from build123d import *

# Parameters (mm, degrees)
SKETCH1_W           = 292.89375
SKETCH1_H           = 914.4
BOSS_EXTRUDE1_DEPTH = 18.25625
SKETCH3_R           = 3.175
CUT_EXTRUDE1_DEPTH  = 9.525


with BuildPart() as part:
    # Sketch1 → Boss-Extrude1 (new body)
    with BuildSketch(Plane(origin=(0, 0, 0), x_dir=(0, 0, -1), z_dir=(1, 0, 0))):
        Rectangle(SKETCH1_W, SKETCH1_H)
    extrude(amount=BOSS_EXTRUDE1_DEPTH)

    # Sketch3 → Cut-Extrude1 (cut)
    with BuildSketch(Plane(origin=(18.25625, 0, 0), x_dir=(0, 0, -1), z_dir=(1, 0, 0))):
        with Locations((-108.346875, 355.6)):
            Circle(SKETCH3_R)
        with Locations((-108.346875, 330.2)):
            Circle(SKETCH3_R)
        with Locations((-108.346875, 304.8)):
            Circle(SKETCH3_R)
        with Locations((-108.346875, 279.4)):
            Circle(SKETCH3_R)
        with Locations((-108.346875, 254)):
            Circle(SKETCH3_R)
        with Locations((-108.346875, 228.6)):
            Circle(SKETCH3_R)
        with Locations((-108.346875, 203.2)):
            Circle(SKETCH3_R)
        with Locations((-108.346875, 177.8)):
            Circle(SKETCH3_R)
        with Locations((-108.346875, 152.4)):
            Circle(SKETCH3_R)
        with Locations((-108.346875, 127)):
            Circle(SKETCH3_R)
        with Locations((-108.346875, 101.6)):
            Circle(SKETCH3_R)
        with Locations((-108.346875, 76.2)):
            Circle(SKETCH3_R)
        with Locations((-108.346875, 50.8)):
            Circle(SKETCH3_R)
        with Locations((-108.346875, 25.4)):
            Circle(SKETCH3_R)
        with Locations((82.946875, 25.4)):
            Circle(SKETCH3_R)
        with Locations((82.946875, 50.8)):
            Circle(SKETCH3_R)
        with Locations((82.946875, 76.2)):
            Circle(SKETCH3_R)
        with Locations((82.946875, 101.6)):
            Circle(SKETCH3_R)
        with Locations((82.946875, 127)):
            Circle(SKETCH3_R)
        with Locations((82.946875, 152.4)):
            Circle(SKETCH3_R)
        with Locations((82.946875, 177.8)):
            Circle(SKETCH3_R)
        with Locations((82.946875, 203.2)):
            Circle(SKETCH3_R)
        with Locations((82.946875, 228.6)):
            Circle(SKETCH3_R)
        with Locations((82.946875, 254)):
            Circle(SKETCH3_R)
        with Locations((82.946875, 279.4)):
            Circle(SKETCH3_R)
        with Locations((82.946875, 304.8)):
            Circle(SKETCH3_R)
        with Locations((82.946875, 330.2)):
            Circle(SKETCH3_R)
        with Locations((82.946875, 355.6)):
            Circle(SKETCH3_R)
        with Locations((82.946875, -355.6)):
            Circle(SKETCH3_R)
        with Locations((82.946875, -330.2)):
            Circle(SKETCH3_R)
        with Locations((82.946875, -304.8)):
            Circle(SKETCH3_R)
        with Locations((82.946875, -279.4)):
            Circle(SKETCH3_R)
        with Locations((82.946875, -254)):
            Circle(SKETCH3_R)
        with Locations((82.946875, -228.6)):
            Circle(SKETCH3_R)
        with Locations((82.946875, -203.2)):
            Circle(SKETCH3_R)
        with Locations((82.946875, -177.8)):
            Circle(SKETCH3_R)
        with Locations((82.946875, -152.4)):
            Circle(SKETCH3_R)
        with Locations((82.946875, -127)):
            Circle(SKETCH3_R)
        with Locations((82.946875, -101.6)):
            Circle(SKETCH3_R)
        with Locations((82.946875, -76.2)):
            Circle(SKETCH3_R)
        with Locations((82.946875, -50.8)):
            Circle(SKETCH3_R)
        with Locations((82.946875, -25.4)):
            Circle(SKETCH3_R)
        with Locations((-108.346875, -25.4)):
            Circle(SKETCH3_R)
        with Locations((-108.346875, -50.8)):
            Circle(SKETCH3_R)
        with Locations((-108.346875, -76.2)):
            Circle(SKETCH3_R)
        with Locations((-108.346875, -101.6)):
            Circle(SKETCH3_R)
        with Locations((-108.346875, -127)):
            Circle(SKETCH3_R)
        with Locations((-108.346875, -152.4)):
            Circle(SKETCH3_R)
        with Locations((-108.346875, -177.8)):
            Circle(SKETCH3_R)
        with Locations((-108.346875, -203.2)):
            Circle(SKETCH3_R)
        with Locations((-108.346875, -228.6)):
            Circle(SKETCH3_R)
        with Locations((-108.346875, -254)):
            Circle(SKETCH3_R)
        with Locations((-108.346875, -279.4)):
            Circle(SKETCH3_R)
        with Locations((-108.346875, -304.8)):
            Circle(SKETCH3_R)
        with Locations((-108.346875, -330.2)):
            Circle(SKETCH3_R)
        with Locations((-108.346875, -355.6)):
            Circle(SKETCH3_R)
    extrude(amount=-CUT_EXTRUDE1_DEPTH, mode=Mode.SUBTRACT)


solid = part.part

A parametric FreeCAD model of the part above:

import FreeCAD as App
import Part
import Sketcher

V = App.Vector
Q = App.Units.Quantity


def add_polygon(sketch, points):
    """Adds a closed chain of lines whose ends are joined by coincident constraints."""
    first, n = sketch.GeometryCount, len(points)
    for a, b in zip(points, points[1:] + points[:1]):
        sketch.addGeometry(Part.LineSegment(App.Vector(*a, 0), App.Vector(*b, 0)), False)
    for i in range(n):
        sketch.addConstraint(Sketcher.Constraint("Coincident", first + i, 2, first + (i + 1) % n, 1))

doc = App.newDocument("Part")
params = doc.addObject("Spreadsheet::Sheet", "Params")
for row, (alias, value) in enumerate([
    ("sketch1_width", "36 in"),
    ("sketch1_height", "11.53125 in"),
    ("pad1_length", "0.71875 in"),
    ("sketch2_diameter", "0.25 in"),
    ("pocket1_length", "0.375 in"),
], start=1):
    params.set(f"A{row}", alias)
    params.set(f"B{row}", "=" + value)
    params.setAlias(f"B{row}", alias)

body = doc.addObject("PartDesign::Body", "Body")

sketch1 = body.newObject("Sketcher::SketchObject", "Sketch")
sketch1.AttachmentSupport = (doc.getObject("YZ_Plane"), [""])
sketch1.MapMode = "FlatFace"
add_polygon(sketch1, [(457.2, 146.446875), (-457.2, 146.446875), (-457.2, -146.446875), (457.2, -146.446875)])
sketch1.addConstraint(Sketcher.Constraint("Horizontal", 0))
sketch1.addConstraint(Sketcher.Constraint("Vertical", 1))
sketch1.addConstraint(Sketcher.Constraint("Horizontal", 2))
sketch1.addConstraint(Sketcher.Constraint("Vertical", 3))
sketch1.addConstraint(Sketcher.Constraint("Symmetric", 0, 2, 2, 2, -1, 1))
sketch1.addConstraint(Sketcher.Constraint("DistanceX", 0, 2, 0, 1, Q("36 in")))
sketch1.addConstraint(Sketcher.Constraint("DistanceY", 1, 2, 1, 1, Q("11.53125 in")))
sketch1.setExpression("Constraints[9]", "Params.sketch1_width")
sketch1.setExpression("Constraints[10]", "Params.sketch1_height")
pad1 = body.newObject("PartDesign::Pad", "Pad")
pad1.Profile = sketch1
pad1.setExpression("Length", "Params.pad1_length")

sketch2 = body.newObject("Sketcher::SketchObject", "Sketch001")
sketch2.AttachmentSupport = (doc.getObject("YZ_Plane"), [""])
sketch2.MapMode = "FlatFace"
sketch2.AttachmentOffset = App.Placement(V(0, 0, 0.71875 * 25.4), App.Rotation())
sketch2.addGeometry(Part.Circle(V(355.6, 108.346875, 0), V(0, 0, 1), 3.175), False)
sketch2.addGeometry(Part.Circle(V(330.2, 108.346875, 0), V(0, 0, 1), 3.175), False)
sketch2.addGeometry(Part.Circle(V(304.8, 108.346875, 0), V(0, 0, 1), 3.175), False)
sketch2.addGeometry(Part.Circle(V(279.4, 108.346875, 0), V(0, 0, 1), 3.175), False)
sketch2.addGeometry(Part.Circle(V(254, 108.346875, 0), V(0, 0, 1), 3.175), False)
sketch2.addGeometry(Part.Circle(V(228.6, 108.346875, 0), V(0, 0, 1), 3.175), False)
sketch2.addGeometry(Part.Circle(V(203.2, 108.346875, 0), V(0, 0, 1), 3.175), False)
sketch2.addGeometry(Part.Circle(V(177.8, 108.346875, 0), V(0, 0, 1), 3.175), False)
sketch2.addGeometry(Part.Circle(V(152.4, 108.346875, 0), V(0, 0, 1), 3.175), False)
sketch2.addGeometry(Part.Circle(V(127, 108.346875, 0), V(0, 0, 1), 3.175), False)
sketch2.addGeometry(Part.Circle(V(101.6, 108.346875, 0), V(0, 0, 1), 3.175), False)
sketch2.addGeometry(Part.Circle(V(76.2, 108.346875, 0), V(0, 0, 1), 3.175), False)
sketch2.addGeometry(Part.Circle(V(50.8, 108.346875, 0), V(0, 0, 1), 3.175), False)
sketch2.addGeometry(Part.Circle(V(25.4, 108.346875, 0), V(0, 0, 1), 3.175), False)
sketch2.addGeometry(Part.Circle(V(25.4, -82.946875, 0), V(0, 0, 1), 3.175), False)
sketch2.addGeometry(Part.Circle(V(50.8, -82.946875, 0), V(0, 0, 1), 3.175), False)
sketch2.addGeometry(Part.Circle(V(76.2, -82.946875, 0), V(0, 0, 1), 3.175), False)
sketch2.addGeometry(Part.Circle(V(101.6, -82.946875, 0), V(0, 0, 1), 3.175), False)
sketch2.addGeometry(Part.Circle(V(127, -82.946875, 0), V(0, 0, 1), 3.175), False)
sketch2.addGeometry(Part.Circle(V(152.4, -82.946875, 0), V(0, 0, 1), 3.175), False)
sketch2.addGeometry(Part.Circle(V(177.8, -82.946875, 0), V(0, 0, 1), 3.175), False)
sketch2.addGeometry(Part.Circle(V(203.2, -82.946875, 0), V(0, 0, 1), 3.175), False)
sketch2.addGeometry(Part.Circle(V(228.6, -82.946875, 0), V(0, 0, 1), 3.175), False)
sketch2.addGeometry(Part.Circle(V(254, -82.946875, 0), V(0, 0, 1), 3.175), False)
sketch2.addGeometry(Part.Circle(V(279.4, -82.946875, 0), V(0, 0, 1), 3.175), False)
sketch2.addGeometry(Part.Circle(V(304.8, -82.946875, 0), V(0, 0, 1), 3.175), False)
sketch2.addGeometry(Part.Circle(V(330.2, -82.946875, 0), V(0, 0, 1), 3.175), False)
sketch2.addGeometry(Part.Circle(V(355.6, -82.946875, 0), V(0, 0, 1), 3.175), False)
sketch2.addGeometry(Part.Circle(V(-355.6, -82.946875, 0), V(0, 0, 1), 3.175), False)
sketch2.addGeometry(Part.Circle(V(-330.2, -82.946875, 0), V(0, 0, 1), 3.175), False)
sketch2.addGeometry(Part.Circle(V(-304.8, -82.946875, 0), V(0, 0, 1), 3.175), False)
sketch2.addGeometry(Part.Circle(V(-279.4, -82.946875, 0), V(0, 0, 1), 3.175), False)
sketch2.addGeometry(Part.Circle(V(-254, -82.946875, 0), V(0, 0, 1), 3.175), False)
sketch2.addGeometry(Part.Circle(V(-228.6, -82.946875, 0), V(0, 0, 1), 3.175), False)
sketch2.addGeometry(Part.Circle(V(-203.2, -82.946875, 0), V(0, 0, 1), 3.175), False)
sketch2.addGeometry(Part.Circle(V(-177.8, -82.946875, 0), V(0, 0, 1), 3.175), False)
sketch2.addGeometry(Part.Circle(V(-152.4, -82.946875, 0), V(0, 0, 1), 3.175), False)
sketch2.addGeometry(Part.Circle(V(-127, -82.946875, 0), V(0, 0, 1), 3.175), False)
sketch2.addGeometry(Part.Circle(V(-101.6, -82.946875, 0), V(0, 0, 1), 3.175), False)
sketch2.addGeometry(Part.Circle(V(-76.2, -82.946875, 0), V(0, 0, 1), 3.175), False)
sketch2.addGeometry(Part.Circle(V(-50.8, -82.946875, 0), V(0, 0, 1), 3.175), False)
sketch2.addGeometry(Part.Circle(V(-25.4, -82.946875, 0), V(0, 0, 1), 3.175), False)
sketch2.addGeometry(Part.Circle(V(-25.4, 108.346875, 0), V(0, 0, 1), 3.175), False)
sketch2.addGeometry(Part.Circle(V(-50.8, 108.346875, 0), V(0, 0, 1), 3.175), False)
sketch2.addGeometry(Part.Circle(V(-76.2, 108.346875, 0), V(0, 0, 1), 3.175), False)
sketch2.addGeometry(Part.Circle(V(-101.6, 108.346875, 0), V(0, 0, 1), 3.175), False)
sketch2.addGeometry(Part.Circle(V(-127, 108.346875, 0), V(0, 0, 1), 3.175), False)
sketch2.addGeometry(Part.Circle(V(-152.4, 108.346875, 0), V(0, 0, 1), 3.175), False)
sketch2.addGeometry(Part.Circle(V(-177.8, 108.346875, 0), V(0, 0, 1), 3.175), False)
sketch2.addGeometry(Part.Circle(V(-203.2, 108.346875, 0), V(0, 0, 1), 3.175), False)
sketch2.addGeometry(Part.Circle(V(-228.6, 108.346875, 0), V(0, 0, 1), 3.175), False)
sketch2.addGeometry(Part.Circle(V(-254, 108.346875, 0), V(0, 0, 1), 3.175), False)
sketch2.addGeometry(Part.Circle(V(-279.4, 108.346875, 0), V(0, 0, 1), 3.175), False)
sketch2.addGeometry(Part.Circle(V(-304.8, 108.346875, 0), V(0, 0, 1), 3.175), False)
sketch2.addGeometry(Part.Circle(V(-330.2, 108.346875, 0), V(0, 0, 1), 3.175), False)
sketch2.addGeometry(Part.Circle(V(-355.6, 108.346875, 0), V(0, 0, 1), 3.175), False)
sketch2.addConstraint(Sketcher.Constraint("Equal", 0, 1))
sketch2.addConstraint(Sketcher.Constraint("Equal", 1, 2))
sketch2.addConstraint(Sketcher.Constraint("Equal", 2, 3))
sketch2.addConstraint(Sketcher.Constraint("Equal", 3, 4))
sketch2.addConstraint(Sketcher.Constraint("Equal", 4, 5))
sketch2.addConstraint(Sketcher.Constraint("Equal", 5, 6))
sketch2.addConstraint(Sketcher.Constraint("Equal", 6, 7))
sketch2.addConstraint(Sketcher.Constraint("Equal", 7, 8))
sketch2.addConstraint(Sketcher.Constraint("Equal", 8, 9))
sketch2.addConstraint(Sketcher.Constraint("Equal", 9, 10))
sketch2.addConstraint(Sketcher.Constraint("Equal", 10, 11))
sketch2.addConstraint(Sketcher.Constraint("Equal", 11, 12))
sketch2.addConstraint(Sketcher.Constraint("Equal", 12, 13))
sketch2.addConstraint(Sketcher.Constraint("Equal", 13, 14))
sketch2.addConstraint(Sketcher.Constraint("Equal", 14, 15))
sketch2.addConstraint(Sketcher.Constraint("Equal", 15, 16))
sketch2.addConstraint(Sketcher.Constraint("Equal", 16, 17))
sketch2.addConstraint(Sketcher.Constraint("Equal", 17, 18))
sketch2.addConstraint(Sketcher.Constraint("Equal", 18, 19))
sketch2.addConstraint(Sketcher.Constraint("Equal", 19, 20))
sketch2.addConstraint(Sketcher.Constraint("Equal", 20, 21))
sketch2.addConstraint(Sketcher.Constraint("Equal", 21, 22))
sketch2.addConstraint(Sketcher.Constraint("Equal", 22, 23))
sketch2.addConstraint(Sketcher.Constraint("Equal", 23, 24))
sketch2.addConstraint(Sketcher.Constraint("Equal", 24, 25))
sketch2.addConstraint(Sketcher.Constraint("Equal", 25, 26))
sketch2.addConstraint(Sketcher.Constraint("Equal", 26, 27))
sketch2.addConstraint(Sketcher.Constraint("Equal", 27, 28))
sketch2.addConstraint(Sketcher.Constraint("Equal", 28, 29))
sketch2.addConstraint(Sketcher.Constraint("Equal", 29, 30))
sketch2.addConstraint(Sketcher.Constraint("Equal", 30, 31))
sketch2.addConstraint(Sketcher.Constraint("Equal", 31, 32))
sketch2.addConstraint(Sketcher.Constraint("Equal", 32, 33))
sketch2.addConstraint(Sketcher.Constraint("Equal", 33, 34))
sketch2.addConstraint(Sketcher.Constraint("Equal", 34, 35))
sketch2.addConstraint(Sketcher.Constraint("Equal", 35, 36))
sketch2.addConstraint(Sketcher.Constraint("Equal", 36, 37))
sketch2.addConstraint(Sketcher.Constraint("Equal", 37, 38))
sketch2.addConstraint(Sketcher.Constraint("Equal", 38, 39))
sketch2.addConstraint(Sketcher.Constraint("Equal", 39, 40))
sketch2.addConstraint(Sketcher.Constraint("Equal", 40, 41))
sketch2.addConstraint(Sketcher.Constraint("Equal", 41, 42))
sketch2.addConstraint(Sketcher.Constraint("Equal", 42, 43))
sketch2.addConstraint(Sketcher.Constraint("Equal", 43, 44))
sketch2.addConstraint(Sketcher.Constraint("Equal", 44, 45))
sketch2.addConstraint(Sketcher.Constraint("Equal", 45, 46))
sketch2.addConstraint(Sketcher.Constraint("Equal", 46, 47))
sketch2.addConstraint(Sketcher.Constraint("Equal", 47, 48))
sketch2.addConstraint(Sketcher.Constraint("Equal", 48, 49))
sketch2.addConstraint(Sketcher.Constraint("Equal", 49, 50))
sketch2.addConstraint(Sketcher.Constraint("Equal", 50, 51))
sketch2.addConstraint(Sketcher.Constraint("Equal", 51, 52))
sketch2.addConstraint(Sketcher.Constraint("Equal", 52, 53))
sketch2.addConstraint(Sketcher.Constraint("Equal", 53, 54))
sketch2.addConstraint(Sketcher.Constraint("Equal", 54, 55))
sketch2.addConstraint(Sketcher.Constraint("Symmetric", 27, 3, 28, 3, -2))
sketch2.addConstraint(Sketcher.Constraint("Symmetric", 26, 3, 29, 3, -2))
sketch2.addConstraint(Sketcher.Constraint("Symmetric", 25, 3, 30, 3, -2))
sketch2.addConstraint(Sketcher.Constraint("Symmetric", 24, 3, 31, 3, -2))
sketch2.addConstraint(Sketcher.Constraint("Symmetric", 23, 3, 32, 3, -2))
sketch2.addConstraint(Sketcher.Constraint("Symmetric", 22, 3, 33, 3, -2))
sketch2.addConstraint(Sketcher.Constraint("Symmetric", 21, 3, 34, 3, -2))
sketch2.addConstraint(Sketcher.Constraint("Symmetric", 20, 3, 35, 3, -2))
sketch2.addConstraint(Sketcher.Constraint("Symmetric", 19, 3, 36, 3, -2))
sketch2.addConstraint(Sketcher.Constraint("Symmetric", 18, 3, 37, 3, -2))
sketch2.addConstraint(Sketcher.Constraint("Symmetric", 17, 3, 38, 3, -2))
sketch2.addConstraint(Sketcher.Constraint("Symmetric", 16, 3, 39, 3, -2))
sketch2.addConstraint(Sketcher.Constraint("Symmetric", 15, 3, 40, 3, -2))
sketch2.addConstraint(Sketcher.Constraint("Symmetric", 14, 3, 41, 3, -2))
sketch2.addConstraint(Sketcher.Constraint("Symmetric", 13, 3, 42, 3, -2))
sketch2.addConstraint(Sketcher.Constraint("Symmetric", 12, 3, 43, 3, -2))
sketch2.addConstraint(Sketcher.Constraint("Symmetric", 11, 3, 44, 3, -2))
sketch2.addConstraint(Sketcher.Constraint("Symmetric", 10, 3, 45, 3, -2))
sketch2.addConstraint(Sketcher.Constraint("Symmetric", 9, 3, 46, 3, -2))
sketch2.addConstraint(Sketcher.Constraint("Symmetric", 8, 3, 47, 3, -2))
sketch2.addConstraint(Sketcher.Constraint("Symmetric", 7, 3, 48, 3, -2))
sketch2.addConstraint(Sketcher.Constraint("Symmetric", 6, 3, 49, 3, -2))
sketch2.addConstraint(Sketcher.Constraint("Symmetric", 5, 3, 50, 3, -2))
sketch2.addConstraint(Sketcher.Constraint("Symmetric", 4, 3, 51, 3, -2))
sketch2.addConstraint(Sketcher.Constraint("Symmetric", 3, 3, 52, 3, -2))
sketch2.addConstraint(Sketcher.Constraint("Symmetric", 2, 3, 53, 3, -2))
sketch2.addConstraint(Sketcher.Constraint("Symmetric", 1, 3, 54, 3, -2))
sketch2.addConstraint(Sketcher.Constraint("Symmetric", 0, 3, 55, 3, -2))
sketch2.addConstraint(Sketcher.Constraint("Horizontal", 0, 3, 1, 3))
sketch2.addConstraint(Sketcher.Constraint("Horizontal", 1, 3, 2, 3))
sketch2.addConstraint(Sketcher.Constraint("Horizontal", 2, 3, 3, 3))
sketch2.addConstraint(Sketcher.Constraint("Horizontal", 3, 3, 4, 3))
sketch2.addConstraint(Sketcher.Constraint("Horizontal", 4, 3, 5, 3))
sketch2.addConstraint(Sketcher.Constraint("Horizontal", 5, 3, 6, 3))
sketch2.addConstraint(Sketcher.Constraint("Horizontal", 6, 3, 7, 3))
sketch2.addConstraint(Sketcher.Constraint("Horizontal", 7, 3, 8, 3))
sketch2.addConstraint(Sketcher.Constraint("Horizontal", 8, 3, 9, 3))
sketch2.addConstraint(Sketcher.Constraint("Horizontal", 9, 3, 10, 3))
sketch2.addConstraint(Sketcher.Constraint("Horizontal", 10, 3, 11, 3))
sketch2.addConstraint(Sketcher.Constraint("Horizontal", 11, 3, 12, 3))
sketch2.addConstraint(Sketcher.Constraint("Horizontal", 12, 3, 13, 3))
sketch2.addConstraint(Sketcher.Constraint("Horizontal", 14, 3, 15, 3))
sketch2.addConstraint(Sketcher.Constraint("Horizontal", 15, 3, 16, 3))
sketch2.addConstraint(Sketcher.Constraint("Horizontal", 16, 3, 17, 3))
sketch2.addConstraint(Sketcher.Constraint("Horizontal", 17, 3, 18, 3))
sketch2.addConstraint(Sketcher.Constraint("Horizontal", 18, 3, 19, 3))
sketch2.addConstraint(Sketcher.Constraint("Horizontal", 19, 3, 20, 3))
sketch2.addConstraint(Sketcher.Constraint("Horizontal", 20, 3, 21, 3))
sketch2.addConstraint(Sketcher.Constraint("Horizontal", 21, 3, 22, 3))
sketch2.addConstraint(Sketcher.Constraint("Horizontal", 22, 3, 23, 3))
sketch2.addConstraint(Sketcher.Constraint("Horizontal", 23, 3, 24, 3))
sketch2.addConstraint(Sketcher.Constraint("Horizontal", 24, 3, 25, 3))
sketch2.addConstraint(Sketcher.Constraint("Horizontal", 25, 3, 26, 3))
sketch2.addConstraint(Sketcher.Constraint("Horizontal", 26, 3, 27, 3))
sketch2.addConstraint(Sketcher.Constraint("Vertical", 13, 3, 14, 3))
sketch2.addConstraint(Sketcher.Constraint("Vertical", 12, 3, 15, 3))
sketch2.addConstraint(Sketcher.Constraint("Vertical", 11, 3, 16, 3))
sketch2.addConstraint(Sketcher.Constraint("Vertical", 10, 3, 17, 3))
sketch2.addConstraint(Sketcher.Constraint("Vertical", 9, 3, 18, 3))
sketch2.addConstraint(Sketcher.Constraint("Vertical", 8, 3, 19, 3))
sketch2.addConstraint(Sketcher.Constraint("Vertical", 7, 3, 20, 3))
sketch2.addConstraint(Sketcher.Constraint("Vertical", 6, 3, 21, 3))
sketch2.addConstraint(Sketcher.Constraint("Vertical", 5, 3, 22, 3))
sketch2.addConstraint(Sketcher.Constraint("Vertical", 4, 3, 23, 3))
sketch2.addConstraint(Sketcher.Constraint("Vertical", 3, 3, 24, 3))
sketch2.addConstraint(Sketcher.Constraint("Vertical", 2, 3, 25, 3))
sketch2.addConstraint(Sketcher.Constraint("Vertical", 1, 3, 26, 3))
sketch2.addConstraint(Sketcher.Constraint("Vertical", 0, 3, 27, 3))
sketch2.addConstraint(Sketcher.Constraint("Diameter", 0, Q("0.25 in")))
sketch2.addConstraint(Sketcher.Constraint("DistanceX", -1, 1, 0, 3, Q("14 in")))
sketch2.addConstraint(Sketcher.Constraint("DistanceX", -1, 1, 1, 3, Q("13 in")))
sketch2.addConstraint(Sketcher.Constraint("DistanceX", -1, 1, 2, 3, Q("12 in")))
sketch2.addConstraint(Sketcher.Constraint("DistanceX", -1, 1, 3, 3, Q("11 in")))
sketch2.addConstraint(Sketcher.Constraint("DistanceX", -1, 1, 4, 3, Q("10 in")))
sketch2.addConstraint(Sketcher.Constraint("DistanceX", -1, 1, 5, 3, Q("9 in")))
sketch2.addConstraint(Sketcher.Constraint("DistanceX", -1, 1, 6, 3, Q("8 in")))
sketch2.addConstraint(Sketcher.Constraint("DistanceX", -1, 1, 7, 3, Q("7 in")))
sketch2.addConstraint(Sketcher.Constraint("DistanceX", -1, 1, 8, 3, Q("6 in")))
sketch2.addConstraint(Sketcher.Constraint("DistanceX", -1, 1, 9, 3, Q("5 in")))
sketch2.addConstraint(Sketcher.Constraint("DistanceX", -1, 1, 10, 3, Q("4 in")))
sketch2.addConstraint(Sketcher.Constraint("DistanceX", -1, 1, 11, 3, Q("3 in")))
sketch2.addConstraint(Sketcher.Constraint("DistanceX", -1, 1, 12, 3, Q("2 in")))
sketch2.addConstraint(Sketcher.Constraint("DistanceX", -1, 1, 13, 3, Q("1 in")))
sketch2.addConstraint(Sketcher.Constraint("DistanceY", -1, 1, 0, 3, Q("4.265625 in")))
sketch2.addConstraint(Sketcher.Constraint("DistanceY", 14, 3, -1, 1, Q("3.265625 in")))
sketch2.setExpression("Constraints[123]", "Params.sketch2_diameter")
pocket1 = body.newObject("PartDesign::Pocket", "Pocket")
pocket1.Profile = sketch2
pocket1.setExpression("Length", "Params.pocket1_length")

doc.recompute()
